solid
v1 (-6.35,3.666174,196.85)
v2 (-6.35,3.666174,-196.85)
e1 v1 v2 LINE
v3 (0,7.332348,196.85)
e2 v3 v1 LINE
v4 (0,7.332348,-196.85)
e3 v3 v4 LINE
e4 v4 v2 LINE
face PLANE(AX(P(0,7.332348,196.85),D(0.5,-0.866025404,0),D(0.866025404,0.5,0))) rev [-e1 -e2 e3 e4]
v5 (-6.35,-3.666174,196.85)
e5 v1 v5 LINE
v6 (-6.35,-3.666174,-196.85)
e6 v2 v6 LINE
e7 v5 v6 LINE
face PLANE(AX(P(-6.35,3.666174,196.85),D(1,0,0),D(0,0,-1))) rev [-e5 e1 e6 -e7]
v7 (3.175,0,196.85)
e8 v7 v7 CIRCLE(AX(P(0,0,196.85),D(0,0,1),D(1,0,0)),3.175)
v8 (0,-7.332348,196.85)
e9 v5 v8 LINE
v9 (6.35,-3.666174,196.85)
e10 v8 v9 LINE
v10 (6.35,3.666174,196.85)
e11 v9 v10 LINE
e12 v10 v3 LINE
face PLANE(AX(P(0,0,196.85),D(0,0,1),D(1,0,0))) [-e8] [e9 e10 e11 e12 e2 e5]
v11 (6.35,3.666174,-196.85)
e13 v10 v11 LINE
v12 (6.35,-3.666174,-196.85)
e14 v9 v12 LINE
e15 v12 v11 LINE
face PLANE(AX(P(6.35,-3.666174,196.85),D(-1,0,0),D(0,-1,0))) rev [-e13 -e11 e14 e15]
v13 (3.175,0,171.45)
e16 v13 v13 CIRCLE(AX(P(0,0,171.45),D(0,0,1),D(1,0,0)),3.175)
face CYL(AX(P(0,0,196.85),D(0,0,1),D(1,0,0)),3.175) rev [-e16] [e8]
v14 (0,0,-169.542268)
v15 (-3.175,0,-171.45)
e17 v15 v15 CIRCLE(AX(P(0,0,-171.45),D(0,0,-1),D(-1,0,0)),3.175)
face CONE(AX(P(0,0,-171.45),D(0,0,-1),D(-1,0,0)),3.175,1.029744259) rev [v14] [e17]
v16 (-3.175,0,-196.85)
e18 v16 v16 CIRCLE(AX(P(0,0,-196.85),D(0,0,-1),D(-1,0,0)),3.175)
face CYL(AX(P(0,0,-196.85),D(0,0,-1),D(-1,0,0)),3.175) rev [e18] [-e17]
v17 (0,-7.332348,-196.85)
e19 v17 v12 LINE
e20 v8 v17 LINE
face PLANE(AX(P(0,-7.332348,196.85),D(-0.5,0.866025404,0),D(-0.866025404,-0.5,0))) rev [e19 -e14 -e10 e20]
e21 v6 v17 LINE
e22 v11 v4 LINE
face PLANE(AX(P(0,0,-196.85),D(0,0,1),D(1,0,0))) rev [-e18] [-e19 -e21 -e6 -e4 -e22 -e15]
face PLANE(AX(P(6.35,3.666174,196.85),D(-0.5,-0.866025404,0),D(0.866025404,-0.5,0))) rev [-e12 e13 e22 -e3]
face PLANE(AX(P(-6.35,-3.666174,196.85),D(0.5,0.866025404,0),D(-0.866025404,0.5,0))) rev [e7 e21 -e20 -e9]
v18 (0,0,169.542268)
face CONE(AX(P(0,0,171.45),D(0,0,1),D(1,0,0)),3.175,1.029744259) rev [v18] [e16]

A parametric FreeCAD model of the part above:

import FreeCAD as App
import Part
import Sketcher
from FreeCAD import Vector
Q = App.Units.Quantity

doc = App.newDocument("Part")
body = doc.addObject("PartDesign::Body", "Body")

# Sketch on XY plane
sketch1 = body.newObject("Sketcher::SketchObject", "Sketch")
sketch1.AttachmentSupport = (doc.getObject("XY_Plane"), [""])
sketch1.MapMode = "FlatFace"
sketch1.addGeometry([
    Part.LineSegment(Vector(-6, -4, 0), Vector(0, -7, 0)),  # 0
    Part.LineSegment(Vector(0, -7, 0), Vector(6, -4, 0)),  # 1
    Part.LineSegment(Vector(6, -4, 0), Vector(6, 4, 0)),  # 2
    Part.LineSegment(Vector(6, 4, 0), Vector(0, 7, 0)),  # 3
    Part.LineSegment(Vector(0, 7, 0), Vector(-6, 4, 0)),  # 4
    Part.LineSegment(Vector(-6, 4, 0), Vector(-6, -4, 0)),  # 5
], False)
sketch1.addConstraint([
    Sketcher.Constraint("Coincident", 0, 2, 1, 1),
    Sketcher.Constraint("Coincident", 1, 2, 2, 1),
    Sketcher.Constraint("Coincident", 2, 2, 3, 1),
    Sketcher.Constraint("Coincident", 3, 2, 4, 1),
    Sketcher.Constraint("Coincident", 4, 2, 5, 1),
    Sketcher.Constraint("Coincident", 5, 2, 0, 1),
    Sketcher.Constraint("Vertical", 2),
    Sketcher.Constraint("Vertical", 5),
    Sketcher.Constraint("Symmetric", 0, 2, 3, 2, -1, 1),
    Sketcher.Constraint("Symmetric", 1, 2, 4, 2, -1, 1),
    Sketcher.Constraint("PointOnObject", 0, 2, -2),
    Sketcher.Constraint("Parallel", 0, 3),
    Sketcher.Constraint("Horizontal", 2, 2, 4, 2),
    Sketcher.Constraint("Angle", 0, Q("-30 deg")),
    Sketcher.Constraint("DistanceX", 4, 2, 2, 2, Q("0.5 in")),
    Sketcher.Constraint("DistanceY", 2, 1, 2, 2, 7.332348),
])
pad1 = body.newObject("PartDesign::Pad", "Pad")
pad1.Profile = sketch1
pad1.Type = "TwoLengths"
pad1.Length = Q("7.75 in")
pad1.Length2 = Q("7.75 in")

# Sketch on XY plane
sketch2 = body.newObject("Sketcher::SketchObject", "Sketch001")
sketch2.AttachmentSupport = (doc.getObject("XY_Plane"), [""])
sketch2.MapMode = "FlatFace"
sketch2.AttachmentOffset = App.Placement(Vector(0, 0, 7.75 * 25.4), App.Rotation())
sketch2.addGeometry(Part.Circle(Vector(0, 0, 0), Vector(0, 0, 1), 3.2), False)
sketch2.addConstraint([
    Sketcher.Constraint("Coincident", 0, 3, -1, 1),
    Sketcher.Constraint("Diameter", 0, Q("0.25 in")),
])
doc.recompute()
hole = body.newObject("PartDesign::Hole", "Hole")
hole.Profile = sketch2
hole.ThreadType = "None"
hole.Diameter = Q("0.25 in")
hole.DepthType = "Dimension"
hole.Depth = Q("1 in")
hole.DrillPoint = "Angled"
hole.DrillPointAngle = 118

# Sketch on XY plane
sketch3 = body.newObject("Sketcher::SketchObject", "Sketch002")
sketch3.AttachmentSupport = (doc.getObject("XY_Plane"), [""])
sketch3.MapMode = "FlatFace"
sketch3.AttachmentOffset = App.Placement(Vector(0, 0, -7.75 * 25.4), App.Rotation())
sketch3.addGeometry(Part.Circle(Vector(0, 0, 0), Vector(0, 0, 1), 3.2), False)
sketch3.addConstraint([
    Sketcher.Constraint("Coincident", 0, 3, -1, 1),
    Sketcher.Constraint("Diameter", 0, Q("0.25 in")),
])
doc.recompute()
hole2 = body.newObject("PartDesign::Hole", "Hole001")
hole2.Profile = sketch3
hole2.ThreadType = "None"
hole2.Diameter = Q("0.25 in")
hole2.DepthType = "Dimension"
hole2.Depth = Q("1 in")
hole2.DrillPoint = "Angled"
hole2.DrillPointAngle = 118
hole2.Reversed = True

doc.recompute()
